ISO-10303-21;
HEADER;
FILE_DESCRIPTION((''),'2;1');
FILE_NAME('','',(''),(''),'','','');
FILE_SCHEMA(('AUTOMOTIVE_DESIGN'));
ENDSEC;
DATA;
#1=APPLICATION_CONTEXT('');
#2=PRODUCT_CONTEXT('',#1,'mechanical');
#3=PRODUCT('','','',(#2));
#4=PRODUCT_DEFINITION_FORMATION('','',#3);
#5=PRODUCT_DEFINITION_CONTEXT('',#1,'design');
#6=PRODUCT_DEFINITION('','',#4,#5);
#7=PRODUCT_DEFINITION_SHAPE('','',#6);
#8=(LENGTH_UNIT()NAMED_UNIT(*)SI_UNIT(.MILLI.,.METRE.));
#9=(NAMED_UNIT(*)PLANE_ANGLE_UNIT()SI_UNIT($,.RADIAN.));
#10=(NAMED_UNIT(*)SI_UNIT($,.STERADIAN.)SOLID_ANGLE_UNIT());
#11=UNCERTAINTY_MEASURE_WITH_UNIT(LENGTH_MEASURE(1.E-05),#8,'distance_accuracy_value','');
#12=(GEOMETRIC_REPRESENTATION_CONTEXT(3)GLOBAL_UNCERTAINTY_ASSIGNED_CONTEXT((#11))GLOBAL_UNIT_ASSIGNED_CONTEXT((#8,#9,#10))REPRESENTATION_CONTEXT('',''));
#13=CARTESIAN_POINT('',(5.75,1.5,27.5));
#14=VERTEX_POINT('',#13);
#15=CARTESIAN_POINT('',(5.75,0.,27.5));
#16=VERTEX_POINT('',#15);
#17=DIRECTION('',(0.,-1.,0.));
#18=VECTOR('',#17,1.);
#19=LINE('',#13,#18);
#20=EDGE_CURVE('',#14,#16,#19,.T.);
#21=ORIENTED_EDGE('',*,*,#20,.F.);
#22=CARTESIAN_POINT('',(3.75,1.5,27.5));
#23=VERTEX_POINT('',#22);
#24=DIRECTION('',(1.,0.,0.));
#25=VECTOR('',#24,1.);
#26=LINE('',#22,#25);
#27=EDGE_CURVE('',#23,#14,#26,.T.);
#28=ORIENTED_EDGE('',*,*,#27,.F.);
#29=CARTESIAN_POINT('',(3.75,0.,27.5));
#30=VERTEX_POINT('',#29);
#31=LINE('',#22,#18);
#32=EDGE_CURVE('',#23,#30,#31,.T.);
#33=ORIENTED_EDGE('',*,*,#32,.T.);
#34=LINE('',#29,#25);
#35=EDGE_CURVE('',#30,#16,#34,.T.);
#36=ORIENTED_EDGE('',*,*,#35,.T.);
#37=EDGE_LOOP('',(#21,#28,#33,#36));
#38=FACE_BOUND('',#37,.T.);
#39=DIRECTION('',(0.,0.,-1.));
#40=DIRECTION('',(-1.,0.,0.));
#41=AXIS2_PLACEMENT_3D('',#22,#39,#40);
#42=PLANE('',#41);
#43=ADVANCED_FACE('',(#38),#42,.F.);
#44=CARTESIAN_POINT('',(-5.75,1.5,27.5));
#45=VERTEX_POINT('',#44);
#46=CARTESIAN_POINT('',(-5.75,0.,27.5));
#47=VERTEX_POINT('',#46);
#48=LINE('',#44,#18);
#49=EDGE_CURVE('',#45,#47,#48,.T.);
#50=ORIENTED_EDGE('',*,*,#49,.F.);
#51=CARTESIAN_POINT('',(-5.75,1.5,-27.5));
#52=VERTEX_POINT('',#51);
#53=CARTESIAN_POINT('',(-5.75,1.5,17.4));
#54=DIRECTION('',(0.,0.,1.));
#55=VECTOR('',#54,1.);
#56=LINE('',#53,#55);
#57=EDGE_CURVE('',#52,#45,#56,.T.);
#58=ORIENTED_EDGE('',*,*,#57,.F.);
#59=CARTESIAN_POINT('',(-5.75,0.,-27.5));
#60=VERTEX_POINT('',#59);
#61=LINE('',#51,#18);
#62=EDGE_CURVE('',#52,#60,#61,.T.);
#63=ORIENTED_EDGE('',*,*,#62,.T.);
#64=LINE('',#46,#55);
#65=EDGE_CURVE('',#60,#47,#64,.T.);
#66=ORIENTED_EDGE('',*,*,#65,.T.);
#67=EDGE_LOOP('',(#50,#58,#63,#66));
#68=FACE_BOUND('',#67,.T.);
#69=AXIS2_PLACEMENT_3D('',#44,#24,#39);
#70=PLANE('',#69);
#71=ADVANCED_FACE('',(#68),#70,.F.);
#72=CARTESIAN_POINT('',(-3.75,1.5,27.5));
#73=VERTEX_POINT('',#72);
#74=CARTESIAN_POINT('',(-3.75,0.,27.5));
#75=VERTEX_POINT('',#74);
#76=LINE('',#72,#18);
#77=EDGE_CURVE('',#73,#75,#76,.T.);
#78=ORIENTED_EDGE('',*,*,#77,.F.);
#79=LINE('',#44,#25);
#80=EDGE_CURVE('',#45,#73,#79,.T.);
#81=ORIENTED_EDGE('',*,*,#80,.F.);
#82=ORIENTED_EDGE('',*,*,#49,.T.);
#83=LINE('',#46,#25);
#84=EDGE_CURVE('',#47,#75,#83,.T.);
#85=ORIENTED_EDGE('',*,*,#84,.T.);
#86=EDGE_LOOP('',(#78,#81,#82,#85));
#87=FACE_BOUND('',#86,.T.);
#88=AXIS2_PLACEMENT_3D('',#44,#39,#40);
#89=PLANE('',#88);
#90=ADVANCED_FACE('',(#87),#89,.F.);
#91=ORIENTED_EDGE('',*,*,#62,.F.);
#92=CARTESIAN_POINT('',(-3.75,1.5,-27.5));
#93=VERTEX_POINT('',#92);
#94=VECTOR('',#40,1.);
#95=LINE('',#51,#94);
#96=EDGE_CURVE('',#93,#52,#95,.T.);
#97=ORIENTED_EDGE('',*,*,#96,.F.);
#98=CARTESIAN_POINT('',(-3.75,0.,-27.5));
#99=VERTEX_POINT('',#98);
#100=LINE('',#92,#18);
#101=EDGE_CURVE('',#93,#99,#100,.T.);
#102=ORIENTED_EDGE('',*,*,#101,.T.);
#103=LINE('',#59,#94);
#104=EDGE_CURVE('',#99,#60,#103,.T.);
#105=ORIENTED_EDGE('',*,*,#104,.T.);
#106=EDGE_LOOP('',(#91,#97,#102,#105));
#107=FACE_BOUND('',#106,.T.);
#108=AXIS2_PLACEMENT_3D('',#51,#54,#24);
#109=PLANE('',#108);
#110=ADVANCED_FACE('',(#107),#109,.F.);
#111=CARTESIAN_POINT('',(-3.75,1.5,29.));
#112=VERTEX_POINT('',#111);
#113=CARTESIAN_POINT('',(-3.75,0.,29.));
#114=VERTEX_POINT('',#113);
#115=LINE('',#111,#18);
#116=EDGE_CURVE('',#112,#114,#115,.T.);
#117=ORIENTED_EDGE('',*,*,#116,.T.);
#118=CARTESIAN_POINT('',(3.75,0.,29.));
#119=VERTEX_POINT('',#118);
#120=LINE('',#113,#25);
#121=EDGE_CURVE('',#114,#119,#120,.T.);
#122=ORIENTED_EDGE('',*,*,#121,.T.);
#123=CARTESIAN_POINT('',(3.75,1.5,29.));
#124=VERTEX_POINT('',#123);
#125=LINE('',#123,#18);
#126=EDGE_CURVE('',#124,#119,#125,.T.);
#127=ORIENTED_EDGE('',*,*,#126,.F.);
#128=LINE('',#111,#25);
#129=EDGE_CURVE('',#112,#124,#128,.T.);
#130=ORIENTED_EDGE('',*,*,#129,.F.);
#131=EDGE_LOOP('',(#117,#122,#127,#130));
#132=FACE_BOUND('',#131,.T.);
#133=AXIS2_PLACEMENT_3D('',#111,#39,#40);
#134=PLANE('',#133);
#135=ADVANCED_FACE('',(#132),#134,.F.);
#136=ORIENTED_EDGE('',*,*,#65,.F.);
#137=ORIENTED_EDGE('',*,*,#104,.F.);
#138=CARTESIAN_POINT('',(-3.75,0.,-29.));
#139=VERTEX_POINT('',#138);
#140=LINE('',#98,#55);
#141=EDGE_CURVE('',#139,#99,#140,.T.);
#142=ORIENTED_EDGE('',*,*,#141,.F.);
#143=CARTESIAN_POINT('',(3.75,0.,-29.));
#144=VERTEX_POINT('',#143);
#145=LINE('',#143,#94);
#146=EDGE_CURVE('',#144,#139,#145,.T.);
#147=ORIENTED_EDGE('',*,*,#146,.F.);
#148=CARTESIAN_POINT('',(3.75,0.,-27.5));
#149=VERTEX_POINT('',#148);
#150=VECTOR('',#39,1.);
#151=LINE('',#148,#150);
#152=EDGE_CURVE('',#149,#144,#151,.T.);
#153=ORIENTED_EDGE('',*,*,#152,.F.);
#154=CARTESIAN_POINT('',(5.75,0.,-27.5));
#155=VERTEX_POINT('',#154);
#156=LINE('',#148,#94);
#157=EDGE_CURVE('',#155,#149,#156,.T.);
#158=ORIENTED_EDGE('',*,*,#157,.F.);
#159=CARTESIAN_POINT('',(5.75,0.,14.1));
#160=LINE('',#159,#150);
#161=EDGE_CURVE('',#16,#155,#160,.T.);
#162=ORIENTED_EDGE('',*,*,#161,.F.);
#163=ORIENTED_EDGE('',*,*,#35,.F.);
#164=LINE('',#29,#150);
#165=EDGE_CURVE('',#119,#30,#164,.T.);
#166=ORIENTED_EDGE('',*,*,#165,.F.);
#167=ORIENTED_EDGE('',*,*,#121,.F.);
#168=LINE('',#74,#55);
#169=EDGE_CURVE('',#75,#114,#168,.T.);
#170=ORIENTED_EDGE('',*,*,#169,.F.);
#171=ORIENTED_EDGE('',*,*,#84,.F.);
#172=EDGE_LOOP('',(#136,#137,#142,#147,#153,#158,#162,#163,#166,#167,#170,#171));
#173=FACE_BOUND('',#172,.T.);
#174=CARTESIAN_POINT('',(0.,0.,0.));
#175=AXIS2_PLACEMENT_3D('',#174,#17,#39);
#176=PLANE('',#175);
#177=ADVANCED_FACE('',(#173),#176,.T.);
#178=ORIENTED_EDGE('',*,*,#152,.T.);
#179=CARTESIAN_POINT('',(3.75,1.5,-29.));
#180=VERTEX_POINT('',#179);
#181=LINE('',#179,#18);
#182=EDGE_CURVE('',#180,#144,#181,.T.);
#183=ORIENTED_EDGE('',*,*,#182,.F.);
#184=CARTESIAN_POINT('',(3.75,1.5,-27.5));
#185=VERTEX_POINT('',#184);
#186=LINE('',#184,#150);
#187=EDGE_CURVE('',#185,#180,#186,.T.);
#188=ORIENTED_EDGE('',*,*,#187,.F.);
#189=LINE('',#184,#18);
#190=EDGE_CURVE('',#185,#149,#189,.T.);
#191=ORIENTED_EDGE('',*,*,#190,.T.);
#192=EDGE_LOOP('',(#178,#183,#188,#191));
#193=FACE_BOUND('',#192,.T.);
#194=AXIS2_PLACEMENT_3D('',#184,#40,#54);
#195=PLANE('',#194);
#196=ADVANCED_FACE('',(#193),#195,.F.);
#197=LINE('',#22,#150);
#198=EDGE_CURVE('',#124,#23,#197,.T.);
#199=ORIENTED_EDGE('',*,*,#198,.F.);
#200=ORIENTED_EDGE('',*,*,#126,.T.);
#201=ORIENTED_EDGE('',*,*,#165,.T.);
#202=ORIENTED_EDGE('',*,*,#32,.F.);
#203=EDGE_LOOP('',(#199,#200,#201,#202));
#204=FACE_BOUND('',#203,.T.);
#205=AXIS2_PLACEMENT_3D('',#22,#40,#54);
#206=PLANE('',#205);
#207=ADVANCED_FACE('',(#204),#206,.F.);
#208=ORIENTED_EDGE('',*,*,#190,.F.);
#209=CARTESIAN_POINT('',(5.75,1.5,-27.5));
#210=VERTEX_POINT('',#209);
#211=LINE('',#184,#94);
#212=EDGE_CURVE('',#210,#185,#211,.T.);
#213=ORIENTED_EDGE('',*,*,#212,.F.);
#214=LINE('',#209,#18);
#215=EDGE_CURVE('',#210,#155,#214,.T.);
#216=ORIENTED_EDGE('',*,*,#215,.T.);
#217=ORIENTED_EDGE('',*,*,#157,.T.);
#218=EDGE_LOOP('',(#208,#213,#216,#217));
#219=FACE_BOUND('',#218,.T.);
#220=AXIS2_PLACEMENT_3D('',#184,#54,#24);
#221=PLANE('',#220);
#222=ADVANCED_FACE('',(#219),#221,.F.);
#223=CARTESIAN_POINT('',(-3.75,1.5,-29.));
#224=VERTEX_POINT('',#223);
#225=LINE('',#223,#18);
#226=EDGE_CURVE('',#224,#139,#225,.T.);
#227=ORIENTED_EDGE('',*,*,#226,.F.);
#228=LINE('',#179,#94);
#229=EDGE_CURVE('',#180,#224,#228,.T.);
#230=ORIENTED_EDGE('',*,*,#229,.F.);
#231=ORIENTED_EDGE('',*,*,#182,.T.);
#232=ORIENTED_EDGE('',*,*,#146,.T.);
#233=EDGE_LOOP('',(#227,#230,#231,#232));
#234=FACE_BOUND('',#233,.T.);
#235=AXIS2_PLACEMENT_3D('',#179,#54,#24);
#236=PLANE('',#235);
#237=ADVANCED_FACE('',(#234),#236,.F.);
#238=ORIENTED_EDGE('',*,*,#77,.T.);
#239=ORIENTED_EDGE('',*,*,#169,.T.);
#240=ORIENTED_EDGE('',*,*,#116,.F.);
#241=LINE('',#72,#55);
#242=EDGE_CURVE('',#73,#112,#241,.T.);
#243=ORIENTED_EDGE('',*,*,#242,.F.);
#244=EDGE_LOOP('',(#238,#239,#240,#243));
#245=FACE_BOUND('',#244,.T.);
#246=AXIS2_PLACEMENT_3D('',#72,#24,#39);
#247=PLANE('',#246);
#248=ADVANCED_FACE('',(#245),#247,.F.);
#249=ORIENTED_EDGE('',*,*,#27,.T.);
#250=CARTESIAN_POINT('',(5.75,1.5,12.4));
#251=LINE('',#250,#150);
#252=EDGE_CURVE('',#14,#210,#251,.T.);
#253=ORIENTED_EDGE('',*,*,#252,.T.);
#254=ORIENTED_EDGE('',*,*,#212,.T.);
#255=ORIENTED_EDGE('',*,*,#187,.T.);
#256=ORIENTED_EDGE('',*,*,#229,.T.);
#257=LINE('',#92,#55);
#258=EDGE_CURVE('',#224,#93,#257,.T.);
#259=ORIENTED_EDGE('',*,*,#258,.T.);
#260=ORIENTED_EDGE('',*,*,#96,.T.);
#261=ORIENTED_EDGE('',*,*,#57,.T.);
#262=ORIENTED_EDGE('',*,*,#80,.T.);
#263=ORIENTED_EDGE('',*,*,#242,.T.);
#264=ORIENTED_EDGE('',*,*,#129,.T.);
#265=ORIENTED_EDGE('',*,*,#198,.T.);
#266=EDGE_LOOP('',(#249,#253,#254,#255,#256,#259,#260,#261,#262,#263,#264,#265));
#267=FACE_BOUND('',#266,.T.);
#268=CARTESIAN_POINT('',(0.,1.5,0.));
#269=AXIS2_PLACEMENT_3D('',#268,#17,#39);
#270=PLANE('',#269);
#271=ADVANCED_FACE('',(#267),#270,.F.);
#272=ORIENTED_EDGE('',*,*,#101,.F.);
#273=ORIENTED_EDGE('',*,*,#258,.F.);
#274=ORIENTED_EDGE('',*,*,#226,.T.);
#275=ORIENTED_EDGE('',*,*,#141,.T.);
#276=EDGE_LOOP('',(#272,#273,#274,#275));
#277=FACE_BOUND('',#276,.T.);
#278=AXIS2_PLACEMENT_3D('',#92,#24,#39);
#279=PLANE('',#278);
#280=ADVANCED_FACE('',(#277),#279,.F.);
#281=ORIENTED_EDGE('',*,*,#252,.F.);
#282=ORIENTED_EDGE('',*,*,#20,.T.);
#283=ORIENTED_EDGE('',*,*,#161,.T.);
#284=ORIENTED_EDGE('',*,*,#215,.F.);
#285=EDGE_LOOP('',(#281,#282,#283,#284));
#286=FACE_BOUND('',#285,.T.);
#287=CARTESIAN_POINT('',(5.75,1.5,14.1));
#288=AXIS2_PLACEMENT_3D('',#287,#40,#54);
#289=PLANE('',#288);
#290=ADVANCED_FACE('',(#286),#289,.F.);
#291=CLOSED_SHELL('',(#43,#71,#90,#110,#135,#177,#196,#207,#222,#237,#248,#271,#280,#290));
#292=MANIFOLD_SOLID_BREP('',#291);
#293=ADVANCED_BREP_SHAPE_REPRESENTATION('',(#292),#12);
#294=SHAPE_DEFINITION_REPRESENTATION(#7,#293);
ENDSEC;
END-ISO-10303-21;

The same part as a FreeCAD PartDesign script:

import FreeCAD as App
import Part
import Sketcher
from FreeCAD import Vector


def add_polygon(sketch, points):
    """Adds a closed chain of lines whose ends are joined by coincident constraints."""
    first, n = sketch.GeometryCount, len(points)
    for a, b in zip(points, points[1:] + points[:1]):
        sketch.addGeometry(Part.LineSegment(App.Vector(*a, 0), App.Vector(*b, 0)), False)
    for i in range(n):
        sketch.addConstraint(Sketcher.Constraint("Coincident", first + i, 2, first + (i + 1) % n, 1))

doc = App.newDocument("Part")
body = doc.addObject("PartDesign::Body", "Body")

# Sketch on XZ plane
sketch1 = body.newObject("Sketcher::SketchObject", "Sketch")
sketch1.AttachmentSupport = (doc.getObject("XZ_Plane"), [""])
sketch1.MapMode = "FlatFace"
add_polygon(sketch1, [(5.75, -27.5), (3.75, -27.5), (3.75, -29), (-3.75, -29), (-3.75, -27.5), (-5.75, -27.5), (-5.75, 27.5), (-3.75, 27.5), (-3.75, 29), (3.75, 29), (3.75, 27.5), (5.75, 27.5)])  # lines 0-11
sketch1.addConstraint([
    Sketcher.Constraint("Horizontal", 0),
    Sketcher.Constraint("Vertical", 1),
    Sketcher.Constraint("Horizontal", 2),
    Sketcher.Constraint("Vertical", 3),
    Sketcher.Constraint("Horizontal", 4),
    Sketcher.Constraint("Vertical", 5),
    Sketcher.Constraint("Horizontal", 6),
    Sketcher.Constraint("Vertical", 7),
    Sketcher.Constraint("Horizontal", 8),
    Sketcher.Constraint("Vertical", 9),
    Sketcher.Constraint("Horizontal", 10),
    Sketcher.Constraint("Vertical", 11),
    Sketcher.Constraint("Symmetric", 0, 2, 6, 2, -1, 1),
    Sketcher.Constraint("Symmetric", 2, 2, 8, 2, -1, 1),
    Sketcher.Constraint("Symmetric", 4, 2, 10, 2, -1, 1),
    Sketcher.Constraint("Symmetric", 0, 2, 3, 2, -2),
    Sketcher.Constraint("DistanceX", 0, 2, 0, 1, 2.0),
    Sketcher.Constraint("DistanceY", 5, 1, 5, 2, 55.0),
    Sketcher.Constraint("DistanceX", 2, 2, 2, 1, 7.5),
    Sketcher.Constraint("DistanceY", 1, 2, 1, 1, 1.5),
])
pad1 = body.newObject("PartDesign::Pad", "Pad")
pad1.Profile = sketch1
pad1.Length = 1.5
pad1.Reversed = True

doc.recompute()
